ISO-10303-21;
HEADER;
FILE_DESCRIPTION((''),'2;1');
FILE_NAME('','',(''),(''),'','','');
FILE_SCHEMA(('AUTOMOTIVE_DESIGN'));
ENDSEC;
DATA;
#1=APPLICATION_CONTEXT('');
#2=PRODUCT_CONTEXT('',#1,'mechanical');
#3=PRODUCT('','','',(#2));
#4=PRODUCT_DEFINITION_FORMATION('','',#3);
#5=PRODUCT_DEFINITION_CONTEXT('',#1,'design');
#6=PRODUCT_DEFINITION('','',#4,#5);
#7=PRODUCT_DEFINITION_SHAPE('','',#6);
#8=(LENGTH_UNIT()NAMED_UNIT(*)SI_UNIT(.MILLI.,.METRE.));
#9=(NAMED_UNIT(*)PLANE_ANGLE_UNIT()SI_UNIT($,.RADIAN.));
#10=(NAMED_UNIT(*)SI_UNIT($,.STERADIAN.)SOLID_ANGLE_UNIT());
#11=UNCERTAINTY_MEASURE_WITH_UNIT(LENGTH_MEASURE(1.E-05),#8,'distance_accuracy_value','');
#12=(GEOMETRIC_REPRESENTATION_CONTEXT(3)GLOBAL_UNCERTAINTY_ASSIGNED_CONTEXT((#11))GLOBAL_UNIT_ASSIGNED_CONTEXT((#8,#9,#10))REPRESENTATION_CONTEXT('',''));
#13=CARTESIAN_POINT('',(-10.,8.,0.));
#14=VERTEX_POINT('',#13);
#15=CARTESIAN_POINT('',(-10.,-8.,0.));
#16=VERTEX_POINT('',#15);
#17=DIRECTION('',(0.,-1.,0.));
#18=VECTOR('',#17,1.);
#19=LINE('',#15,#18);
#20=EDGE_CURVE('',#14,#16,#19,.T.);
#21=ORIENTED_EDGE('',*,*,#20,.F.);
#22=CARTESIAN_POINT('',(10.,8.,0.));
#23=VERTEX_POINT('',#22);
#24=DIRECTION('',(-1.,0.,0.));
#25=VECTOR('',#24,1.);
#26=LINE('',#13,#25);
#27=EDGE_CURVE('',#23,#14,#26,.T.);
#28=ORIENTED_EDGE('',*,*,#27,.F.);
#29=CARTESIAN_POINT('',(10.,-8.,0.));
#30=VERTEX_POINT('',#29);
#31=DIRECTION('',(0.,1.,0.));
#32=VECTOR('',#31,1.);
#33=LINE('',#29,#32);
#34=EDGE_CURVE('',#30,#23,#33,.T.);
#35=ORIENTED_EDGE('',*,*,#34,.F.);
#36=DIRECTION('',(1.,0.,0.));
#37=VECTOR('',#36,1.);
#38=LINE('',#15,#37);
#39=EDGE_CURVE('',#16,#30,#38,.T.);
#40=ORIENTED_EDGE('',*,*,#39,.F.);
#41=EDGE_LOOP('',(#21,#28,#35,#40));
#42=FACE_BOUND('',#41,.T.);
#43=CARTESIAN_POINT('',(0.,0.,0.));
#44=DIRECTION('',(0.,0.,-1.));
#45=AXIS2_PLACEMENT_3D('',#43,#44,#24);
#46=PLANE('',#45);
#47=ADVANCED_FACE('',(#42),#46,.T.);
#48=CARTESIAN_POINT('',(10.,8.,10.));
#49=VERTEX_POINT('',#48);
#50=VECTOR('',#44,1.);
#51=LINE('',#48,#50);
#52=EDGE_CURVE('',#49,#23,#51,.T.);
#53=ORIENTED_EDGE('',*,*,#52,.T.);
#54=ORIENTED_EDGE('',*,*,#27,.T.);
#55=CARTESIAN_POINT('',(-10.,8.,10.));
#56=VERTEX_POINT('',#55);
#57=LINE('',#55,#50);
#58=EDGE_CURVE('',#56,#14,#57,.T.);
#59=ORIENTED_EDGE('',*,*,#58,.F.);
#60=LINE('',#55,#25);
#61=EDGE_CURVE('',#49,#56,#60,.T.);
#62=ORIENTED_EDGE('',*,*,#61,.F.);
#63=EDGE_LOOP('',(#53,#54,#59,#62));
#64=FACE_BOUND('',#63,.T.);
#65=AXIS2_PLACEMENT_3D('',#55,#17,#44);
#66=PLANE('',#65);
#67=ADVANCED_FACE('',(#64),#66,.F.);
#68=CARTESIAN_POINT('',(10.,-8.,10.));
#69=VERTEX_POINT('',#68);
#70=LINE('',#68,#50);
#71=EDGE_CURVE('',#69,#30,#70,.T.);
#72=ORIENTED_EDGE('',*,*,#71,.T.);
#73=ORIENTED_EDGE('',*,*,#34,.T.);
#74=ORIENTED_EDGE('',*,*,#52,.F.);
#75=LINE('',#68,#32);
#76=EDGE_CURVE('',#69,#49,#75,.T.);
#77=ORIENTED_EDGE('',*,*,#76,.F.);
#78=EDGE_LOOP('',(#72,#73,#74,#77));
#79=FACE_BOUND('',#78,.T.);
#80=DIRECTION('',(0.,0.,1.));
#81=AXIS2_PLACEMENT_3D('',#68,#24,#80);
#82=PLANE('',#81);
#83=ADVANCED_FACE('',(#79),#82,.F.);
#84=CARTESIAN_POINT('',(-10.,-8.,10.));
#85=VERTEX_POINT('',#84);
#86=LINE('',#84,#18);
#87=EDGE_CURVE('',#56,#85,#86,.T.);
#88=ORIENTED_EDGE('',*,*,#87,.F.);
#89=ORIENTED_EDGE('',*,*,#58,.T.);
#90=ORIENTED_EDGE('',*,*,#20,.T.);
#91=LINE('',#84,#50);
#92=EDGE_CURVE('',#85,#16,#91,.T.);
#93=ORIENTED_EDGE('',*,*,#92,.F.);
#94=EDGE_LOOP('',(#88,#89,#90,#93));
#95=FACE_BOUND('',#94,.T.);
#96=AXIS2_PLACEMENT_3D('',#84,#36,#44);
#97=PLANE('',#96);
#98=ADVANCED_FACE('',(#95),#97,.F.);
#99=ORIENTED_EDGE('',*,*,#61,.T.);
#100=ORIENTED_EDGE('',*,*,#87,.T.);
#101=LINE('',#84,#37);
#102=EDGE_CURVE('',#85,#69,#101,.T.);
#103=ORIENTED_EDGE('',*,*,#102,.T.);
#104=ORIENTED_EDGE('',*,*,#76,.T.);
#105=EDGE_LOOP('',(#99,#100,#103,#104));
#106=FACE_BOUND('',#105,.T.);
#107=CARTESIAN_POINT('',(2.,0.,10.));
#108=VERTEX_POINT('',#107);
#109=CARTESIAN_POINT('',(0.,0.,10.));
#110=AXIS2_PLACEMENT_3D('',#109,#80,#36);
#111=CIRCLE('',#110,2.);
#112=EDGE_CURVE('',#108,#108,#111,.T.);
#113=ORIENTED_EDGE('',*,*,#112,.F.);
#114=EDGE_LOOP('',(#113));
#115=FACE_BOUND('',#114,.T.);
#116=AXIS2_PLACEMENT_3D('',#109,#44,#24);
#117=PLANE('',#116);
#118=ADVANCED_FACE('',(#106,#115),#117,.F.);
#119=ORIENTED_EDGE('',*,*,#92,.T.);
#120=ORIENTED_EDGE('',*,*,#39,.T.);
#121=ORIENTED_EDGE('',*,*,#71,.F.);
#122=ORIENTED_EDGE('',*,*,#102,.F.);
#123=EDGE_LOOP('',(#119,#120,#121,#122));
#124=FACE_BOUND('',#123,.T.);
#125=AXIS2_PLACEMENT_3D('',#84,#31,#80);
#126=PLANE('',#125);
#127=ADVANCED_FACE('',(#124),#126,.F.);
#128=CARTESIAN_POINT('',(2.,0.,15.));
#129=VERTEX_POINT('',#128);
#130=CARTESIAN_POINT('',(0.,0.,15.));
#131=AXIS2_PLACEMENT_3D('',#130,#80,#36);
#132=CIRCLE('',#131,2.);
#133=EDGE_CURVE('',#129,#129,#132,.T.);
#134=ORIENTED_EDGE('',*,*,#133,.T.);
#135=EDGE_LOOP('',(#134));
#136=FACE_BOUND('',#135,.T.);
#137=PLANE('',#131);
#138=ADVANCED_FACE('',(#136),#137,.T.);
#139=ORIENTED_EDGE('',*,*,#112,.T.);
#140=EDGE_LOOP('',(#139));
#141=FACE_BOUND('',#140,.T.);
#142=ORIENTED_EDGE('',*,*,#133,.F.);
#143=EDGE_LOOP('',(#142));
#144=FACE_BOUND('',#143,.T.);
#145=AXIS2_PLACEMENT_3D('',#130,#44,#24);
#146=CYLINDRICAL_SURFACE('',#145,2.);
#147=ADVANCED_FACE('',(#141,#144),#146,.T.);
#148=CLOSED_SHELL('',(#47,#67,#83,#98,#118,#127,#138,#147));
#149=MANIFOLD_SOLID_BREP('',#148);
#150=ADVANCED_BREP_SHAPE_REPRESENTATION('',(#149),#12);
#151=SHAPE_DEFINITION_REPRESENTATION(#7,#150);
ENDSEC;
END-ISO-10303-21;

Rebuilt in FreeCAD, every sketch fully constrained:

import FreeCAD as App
import Part
import Sketcher
Q = App.Units.Quantity


def add_polygon(sketch, points):
    """Adds a closed chain of lines whose ends are joined by coincident constraints."""
    first, n = sketch.GeometryCount, len(points)
    for a, b in zip(points, points[1:] + points[:1]):
        sketch.addGeometry(Part.LineSegment(App.Vector(*a, 0), App.Vector(*b, 0)), False)
    for i in range(n):
        sketch.addConstraint(Sketcher.Constraint("Coincident", first + i, 2, first + (i + 1) % n, 1))

doc = App.newDocument("Part")
body = doc.addObject("PartDesign::Body", "Body")

# Sketch on XY plane
sketch1 = body.newObject("Sketcher::SketchObject", "Sketch")
sketch1.AttachmentSupport = (doc.getObject("XY_Plane"), [""])
sketch1.MapMode = "FlatFace"
add_polygon(sketch1, [(-10, 8), (-10, -8), (10, -8), (10, 8)])  # lines 0-3
sketch1.addGeometry(Part.Circle(App.Vector(0, 0, 0), App.Vector(0, 0, 1), 2), False)  # 4
sketch1.addConstraint(Sketcher.Constraint("Vertical", 0))
sketch1.addConstraint(Sketcher.Constraint("Horizontal", 1))
sketch1.addConstraint(Sketcher.Constraint("Vertical", 2))
sketch1.addConstraint(Sketcher.Constraint("Horizontal", 3))
sketch1.addConstraint(Sketcher.Constraint("Coincident", 4, 3, -1, 1))
sketch1.addConstraint(Sketcher.Constraint("Symmetric", 0, 2, 2, 2, -1, 1))
sketch1.addConstraint(Sketcher.Constraint("Diameter", 4, Q("4 mm")))
sketch1.addConstraint(Sketcher.Constraint("DistanceX", 1, 1, 1, 2, Q("20 mm")))
sketch1.addConstraint(Sketcher.Constraint("DistanceY", 0, 2, 0, 1, Q("16 mm")))
pad1 = body.newObject("PartDesign::Pad", "Pad")
pad1.Profile = sketch1
pad1.Length = 10

# Sketch on XY plane
sketch2 = body.newObject("Sketcher::SketchObject", "Sketch001")
sketch2.AttachmentSupport = (doc.getObject("XY_Plane"), [""])
sketch2.MapMode = "FlatFace"
sketch2.addGeometry(Part.Circle(App.Vector(0, 0, 0), App.Vector(0, 0, 1), 2), False)
sketch2.addConstraint(Sketcher.Constraint("Coincident", 0, 3, -1, 1))
sketch2.addConstraint(Sketcher.Constraint("Diameter", 0, Q("4 mm")))
pad2 = body.newObject("PartDesign::Pad", "Pad001")
pad2.Profile = sketch2
pad2.Length = 15

doc.recompute()
